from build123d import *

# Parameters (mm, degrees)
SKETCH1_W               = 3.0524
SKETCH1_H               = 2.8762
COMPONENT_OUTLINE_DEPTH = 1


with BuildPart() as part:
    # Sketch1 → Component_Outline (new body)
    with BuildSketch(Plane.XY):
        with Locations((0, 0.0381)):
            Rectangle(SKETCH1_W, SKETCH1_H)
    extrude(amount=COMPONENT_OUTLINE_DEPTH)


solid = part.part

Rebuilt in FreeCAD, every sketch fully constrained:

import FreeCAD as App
import Part
import Sketcher
from FreeCAD import Vector
Q = App.Units.Quantity

doc = App.newDocument("Part")
params = doc.addObject("Spreadsheet::Sheet", "Params")
for row, (alias, value) in enumerate([
    ("pad1_length", "1 mm"),
], start=1):
    params.set(f"A{row}", alias)
    params.set(f"B{row}", "=" + value)
    params.setAlias(f"B{row}", alias)

body = doc.addObject("PartDesign::Body", "Body")

sketch1 = body.newObject("Sketcher::SketchObject", "Sketch")
sketch1.AttachmentSupport = (doc.getObject("XY_Plane"), [""])
sketch1.MapMode = "FlatFace"
sketch1.addGeometry([
    Part.LineSegment(Vector(-1.5, 1.5, 0), Vector(-1.5, -1.4, 0)),
    Part.LineSegment(Vector(-1.5, -1.4, 0), Vector(1.5, -1.4, 0)),
    Part.LineSegment(Vector(1.5, -1.4, 0), Vector(1.5, 1.5, 0)),
    Part.LineSegment(Vector(1.5, 1.5, 0), Vector(-1.5, 1.5, 0)),
], False)
sketch1.addConstraint([
    Sketcher.Constraint("Coincident", 0, 2, 1, 1),
    Sketcher.Constraint("Coincident", 1, 2, 2, 1),
    Sketcher.Constraint("Coincident", 2, 2, 3, 1),
    Sketcher.Constraint("Coincident", 3, 2, 0, 1),
    Sketcher.Constraint("Vertical", 0),
    Sketcher.Constraint("Horizontal", 1),
    Sketcher.Constraint("Vertical", 2),
    Sketcher.Constraint("Horizontal", 3),
    Sketcher.Constraint("DistanceY", 0, 2, -1, 1, Q("1.4 mm")),
    Sketcher.Constraint("DistanceX", 1, 1, 1, 2, Q("3.0524 mm")),
    Sketcher.Constraint("DistanceY", 0, 2, 0, 1, Q("2.8762 mm")),
    Sketcher.Constraint("DistanceX", 0, 2, -1, 1, Q("1.5262 mm")),
])
pad1 = body.newObject("PartDesign::Pad", "Pad")
pad1.Profile = sketch1
pad1.setExpression("Length", "Params.pad1_length")

doc.recompute()
